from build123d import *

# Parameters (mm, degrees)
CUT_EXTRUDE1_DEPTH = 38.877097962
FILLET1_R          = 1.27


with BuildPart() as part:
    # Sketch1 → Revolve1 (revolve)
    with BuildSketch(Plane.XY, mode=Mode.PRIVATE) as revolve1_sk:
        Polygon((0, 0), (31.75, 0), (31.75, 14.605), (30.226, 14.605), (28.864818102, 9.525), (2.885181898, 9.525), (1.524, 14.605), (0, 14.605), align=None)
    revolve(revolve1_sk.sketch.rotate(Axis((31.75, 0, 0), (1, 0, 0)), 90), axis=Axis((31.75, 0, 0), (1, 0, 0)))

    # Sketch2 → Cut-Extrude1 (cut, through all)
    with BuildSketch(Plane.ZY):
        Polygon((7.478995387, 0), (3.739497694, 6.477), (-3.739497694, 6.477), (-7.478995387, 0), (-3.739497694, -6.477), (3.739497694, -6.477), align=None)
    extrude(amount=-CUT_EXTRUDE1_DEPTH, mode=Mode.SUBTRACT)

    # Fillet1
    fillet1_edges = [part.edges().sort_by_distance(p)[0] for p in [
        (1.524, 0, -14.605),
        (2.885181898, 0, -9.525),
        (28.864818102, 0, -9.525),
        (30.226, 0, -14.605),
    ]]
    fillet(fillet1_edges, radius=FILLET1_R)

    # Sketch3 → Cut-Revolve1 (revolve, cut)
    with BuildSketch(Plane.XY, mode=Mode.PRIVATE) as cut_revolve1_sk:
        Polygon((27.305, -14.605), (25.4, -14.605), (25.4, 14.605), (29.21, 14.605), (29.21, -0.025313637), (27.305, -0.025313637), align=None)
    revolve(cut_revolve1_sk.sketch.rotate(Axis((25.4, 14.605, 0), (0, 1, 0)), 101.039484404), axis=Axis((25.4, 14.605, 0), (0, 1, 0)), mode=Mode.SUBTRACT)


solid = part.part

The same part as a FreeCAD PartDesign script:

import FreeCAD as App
import Part
import Sketcher
Q = App.Units.Quantity


def edges_at(feature, points):
    """Names of the edges that pass closest to the given points."""
    edges = feature.Shape.Edges
    near = lambda p: min(range(len(edges)), key=lambda i: edges[i].distToShape(Part.Vertex(*p))[0])
    return sorted({f"Edge{near(p) + 1}" for p in points})


def add_polygon(sketch, points):
    """Adds a closed chain of lines whose ends are joined by coincident constraints."""
    first, n = sketch.GeometryCount, len(points)
    for a, b in zip(points, points[1:] + points[:1]):
        sketch.addGeometry(Part.LineSegment(App.Vector(*a, 0), App.Vector(*b, 0)), False)
    for i in range(n):
        sketch.addConstraint(Sketcher.Constraint("Coincident", first + i, 2, first + (i + 1) % n, 1))

doc = App.newDocument("Part")
body = doc.addObject("PartDesign::Body", "Body")

sketch1 = body.newObject("Sketcher::SketchObject", "Sketch")
sketch1.AttachmentSupport = (doc.getObject("XY_Plane"), [""])
sketch1.MapMode = "FlatFace"
add_polygon(sketch1, [(0, 0), (31.75, 0), (31.75, 14.605), (30.226, 14.605), (28.864818, 9.525), (2.885182, 9.525), (1.524, 14.605), (0, 14.605)])
sketch1.addConstraint([
    Sketcher.Constraint("Horizontal", 0),
    Sketcher.Constraint("Vertical", 1),
    Sketcher.Constraint("Horizontal", 2),
    Sketcher.Constraint("Horizontal", 4),
    Sketcher.Constraint("Horizontal", 6),
    Sketcher.Constraint("Vertical", 7),
    Sketcher.Constraint("Coincident", 7, 2, -1, 1),
    Sketcher.Constraint("Horizontal", 2, 2, 5, 2),
    Sketcher.Constraint("Equal", 2, 6),
    Sketcher.Constraint("Equal", 3, 5),
    Sketcher.Constraint("Angle", 3, Q("-105 deg")),
    Sketcher.Constraint("DistanceX", 0, 1, 0, 2, Q("1.25 in")),
    Sketcher.Constraint("DistanceX", 2, 2, 2, 1, Q("0.06 in")),
    Sketcher.Constraint("DistanceY", 3, 2, 2, 2, Q("0.2 in")),
    Sketcher.Constraint("DistanceY", 1, 1, 1, 2, Q("0.575 in")),
])
revolution = body.newObject("PartDesign::Revolution", "Revolution")
revolution.Profile = sketch1
revolution.ReferenceAxis = (sketch1, ["H_Axis"])
revolution.Angle = 360

sketch2 = body.newObject("Sketcher::SketchObject", "Sketch001")
sketch2.AttachmentSupport = (doc.getObject("YZ_Plane"), [""])
sketch2.MapMode = "FlatFace"
add_polygon(sketch2, [(0, 7.478995), (6.477, 3.739498), (6.477, -3.739498), (0, -7.478995), (-6.477, -3.739498), (-6.477, 3.739498)])
sketch2.addConstraint([
    Sketcher.Constraint("Vertical", 1),
    Sketcher.Constraint("Vertical", 4),
    Sketcher.Constraint("Symmetric", 0, 2, 3, 2, -1, 1),
    Sketcher.Constraint("Symmetric", 2, 2, 5, 2, -1, 1),
    Sketcher.Constraint("PointOnObject", 2, 2, -2),
    Sketcher.Constraint("Parallel", 2, 5),
    Sketcher.Constraint("Horizontal", 1, 2, 3, 2),
    Sketcher.Constraint("Angle", 0, Q("-30 deg")),
    Sketcher.Constraint("DistanceX", 3, 2, 1, 2, Q("0.51 in")),
    Sketcher.Constraint("DistanceY", 1, 2, 1, 1, Q("7.478995 mm")),
])
pocket1 = body.newObject("PartDesign::Pocket", "Pocket")
pocket1.Profile = sketch2
pocket1.Type = "ThroughAll"
pocket1.Reversed = True
doc.recompute()

fillet = body.newObject("PartDesign::Fillet", "Fillet")
fillet.Base = (pocket1, edges_at(pocket1, [
    (1.524, 0, -14.605),
    (2.885, 0, -9.525),
    (28.865, 0, -9.525),
    (30.226, 0, -14.605),
]))
fillet.Radius = Q("0.05 in")

sketch3 = body.newObject("Sketcher::SketchObject", "Sketch002")
sketch3.AttachmentSupport = (doc.getObject("XY_Plane"), [""])
sketch3.MapMode = "FlatFace"
add_polygon(sketch3, [(25.4, -14.605), (27.305, -14.605), (27.305, -0.025314), (29.21, -0.025314), (29.21, 14.605), (25.4, 14.605)])
sketch3.addGeometry(Part.LineSegment(App.Vector(25.4, -14.605, 0), App.Vector(25.4, 14.605, 0)), True)
sketch3.addConstraint([
    Sketcher.Constraint("Horizontal", 0),
    Sketcher.Constraint("Vertical", 1),
    Sketcher.Constraint("Horizontal", 2),
    Sketcher.Constraint("Vertical", 3),
    Sketcher.Constraint("Horizontal", 4),
    Sketcher.Constraint("Vertical", 5),
    Sketcher.Constraint("Vertical", 6),
    Sketcher.Constraint("Coincident", 6, 1, 5, 2),
    Sketcher.Constraint("Horizontal", 3, 2, 6, 2),
    Sketcher.Constraint("Equal", 0, 2),
    Sketcher.Constraint("DistanceX", -1, 1, 4, 2, Q("1 in")),
    Sketcher.Constraint("DistanceX", 4, 2, 4, 1, Q("0.15 in")),
    Sketcher.Constraint("DistanceY", 5, 2, 5, 1, Q("1.15 in")),
    Sketcher.Constraint("DistanceY", 0, 2, -1, 1, Q("0.575 in")),
    Sketcher.Constraint("DistanceY", 1, 1, 1, 2, Q("14.579686 mm")),
])
groove = body.newObject("PartDesign::Groove", "Groove")
groove.Profile = sketch3
groove.ReferenceAxis = (sketch3, ["Axis0"])
groove.Angle = 360

doc.recompute()
